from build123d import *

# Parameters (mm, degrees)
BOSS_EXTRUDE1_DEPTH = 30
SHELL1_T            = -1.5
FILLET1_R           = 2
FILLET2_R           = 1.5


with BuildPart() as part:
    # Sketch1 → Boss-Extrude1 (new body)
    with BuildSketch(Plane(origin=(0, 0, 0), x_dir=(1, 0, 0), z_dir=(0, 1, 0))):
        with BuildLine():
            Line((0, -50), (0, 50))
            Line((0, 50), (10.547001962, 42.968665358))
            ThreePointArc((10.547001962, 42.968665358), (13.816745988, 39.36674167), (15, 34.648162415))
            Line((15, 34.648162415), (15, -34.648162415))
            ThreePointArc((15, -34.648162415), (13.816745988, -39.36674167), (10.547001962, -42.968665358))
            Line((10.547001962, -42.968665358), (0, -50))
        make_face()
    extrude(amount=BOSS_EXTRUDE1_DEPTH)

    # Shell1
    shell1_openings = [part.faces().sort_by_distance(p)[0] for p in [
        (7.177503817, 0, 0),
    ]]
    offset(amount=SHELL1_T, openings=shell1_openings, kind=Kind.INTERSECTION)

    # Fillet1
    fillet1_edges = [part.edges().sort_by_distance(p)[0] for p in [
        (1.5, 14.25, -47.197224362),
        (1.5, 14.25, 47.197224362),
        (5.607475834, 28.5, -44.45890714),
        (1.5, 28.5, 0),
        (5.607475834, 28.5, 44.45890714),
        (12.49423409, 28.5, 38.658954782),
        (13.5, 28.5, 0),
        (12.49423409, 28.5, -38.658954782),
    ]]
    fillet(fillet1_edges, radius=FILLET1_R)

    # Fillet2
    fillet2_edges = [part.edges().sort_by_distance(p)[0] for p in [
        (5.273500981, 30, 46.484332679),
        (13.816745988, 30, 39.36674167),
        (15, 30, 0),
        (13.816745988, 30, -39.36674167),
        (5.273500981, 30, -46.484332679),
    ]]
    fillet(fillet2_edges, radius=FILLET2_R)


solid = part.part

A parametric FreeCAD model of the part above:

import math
import FreeCAD as App
import Part
import Sketcher
from FreeCAD import Vector


def edges_at(feature, points):
    """Names of the edges that pass closest to the given points."""
    edges = feature.Shape.Edges
    near = lambda p: min(range(len(edges)), key=lambda i: edges[i].distToShape(Part.Vertex(*p))[0])
    return sorted({f"Edge{near(p) + 1}" for p in points})


def faces_at(feature, points):
    """Names of the faces that lie closest to the given points."""
    faces = feature.Shape.Faces
    near = lambda p: min(range(len(faces)), key=lambda i: faces[i].distToShape(Part.Vertex(*p))[0])
    return sorted({f"Face{near(p) + 1}" for p in points})

doc = App.newDocument("Part")
body = doc.addObject("PartDesign::Body", "Body")

# Sketch on XZ plane
sketch1 = doc.addObject("Sketcher::SketchObject", "Sketch")
body.addObject(sketch1)
sketch1.AttachmentSupport = (doc.XZ_Plane, [""])
sketch1.MapMode = "FlatFace"
sketch1.addGeometry([
    Part.LineSegment(Vector(0, -50, 0), Vector(0, 50, 0)),  # 0
    Part.LineSegment(Vector(0, 50, 0), Vector(11, 43, 0)),  # 1
    Part.ArcOfCircle(Part.Circle(Vector(5, 35, 0), Vector(0, 0, 1), 10), math.radians(0), math.radians(56)),  # 2
    Part.LineSegment(Vector(15, 35, 0), Vector(15, -35, 0)),  # 3
    Part.ArcOfCircle(Part.Circle(Vector(5, -35, 0), Vector(0, 0, 1), 10), math.radians(-56), math.radians(0)),  # 4
    Part.LineSegment(Vector(11, -43, 0), Vector(0, -50, 0)),  # 5
], False)
sketch1.addConstraint([
    Sketcher.Constraint("Coincident", 0, 2, 1, 1),
    Sketcher.Constraint("Tangent", 1, 2, 2, 2),
    Sketcher.Constraint("Tangent", 2, 1, 3, 1),
    Sketcher.Constraint("Tangent", 3, 2, 4, 2),
    Sketcher.Constraint("Tangent", 4, 1, 5, 1),
    Sketcher.Constraint("Coincident", 5, 2, 0, 1),
    Sketcher.Constraint("Vertical", 0),
    Sketcher.Constraint("Vertical", 3),
    Sketcher.Constraint("Equal", 2, 4),
    Sketcher.Constraint("Symmetric", 0, 2, 5, 2, -1, 1),
    Sketcher.Constraint("Vertical", 1, 2, 4, 1),
    Sketcher.Constraint("Radius", 2, 10.0),
    Sketcher.Constraint("DistanceY", 0, 1, 0, 2, 100.0),
    Sketcher.Constraint("DistanceX", -1, 1, 2, 3, 5.0),
    Sketcher.Constraint("DistanceX", -1, 1, 1, 2, 10.547002),
])
pad1 = doc.addObject("PartDesign::Pad", "Pad")
body.addObject(pad1)
pad1.Profile = sketch1
pad1.Length = 30
pad1.Reversed = True
doc.recompute()

thickness = doc.addObject("PartDesign::Thickness", "Thickness")
body.addObject(thickness)
thickness.Base = (pad1, faces_at(pad1, [(7.5, 0, 0)]))
thickness.Value = 1.5
thickness.Reversed = True
thickness.Join = "Intersection"
doc.recompute()

fillet = doc.addObject("PartDesign::Fillet", "Fillet")
body.addObject(fillet)
fillet.Base = (thickness, edges_at(thickness, [
    (1.5, 14.25, -47.197),
    (1.5, 14.25, 47.197),
    (5.607, 28.5, -44.459),
    (1.5, 28.5, 0),
    (5.607, 28.5, 44.459),
    (12.494, 28.5, 38.659),
    (13.5, 28.5, 0),
    (12.494, 28.5, -38.659),
]))
fillet.Radius = 2
doc.recompute()

fillet2 = doc.addObject("PartDesign::Fillet", "Fillet001")
body.addObject(fillet2)
fillet2.Base = (fillet, edges_at(fillet, [
    (5.274, 30, 46.484),
    (13.817, 30, 39.367),
    (15, 30, 0),
    (13.817, 30, -39.367),
    (5.274, 30, -46.484),
]))
fillet2.Radius = 1.5

doc.recompute()
